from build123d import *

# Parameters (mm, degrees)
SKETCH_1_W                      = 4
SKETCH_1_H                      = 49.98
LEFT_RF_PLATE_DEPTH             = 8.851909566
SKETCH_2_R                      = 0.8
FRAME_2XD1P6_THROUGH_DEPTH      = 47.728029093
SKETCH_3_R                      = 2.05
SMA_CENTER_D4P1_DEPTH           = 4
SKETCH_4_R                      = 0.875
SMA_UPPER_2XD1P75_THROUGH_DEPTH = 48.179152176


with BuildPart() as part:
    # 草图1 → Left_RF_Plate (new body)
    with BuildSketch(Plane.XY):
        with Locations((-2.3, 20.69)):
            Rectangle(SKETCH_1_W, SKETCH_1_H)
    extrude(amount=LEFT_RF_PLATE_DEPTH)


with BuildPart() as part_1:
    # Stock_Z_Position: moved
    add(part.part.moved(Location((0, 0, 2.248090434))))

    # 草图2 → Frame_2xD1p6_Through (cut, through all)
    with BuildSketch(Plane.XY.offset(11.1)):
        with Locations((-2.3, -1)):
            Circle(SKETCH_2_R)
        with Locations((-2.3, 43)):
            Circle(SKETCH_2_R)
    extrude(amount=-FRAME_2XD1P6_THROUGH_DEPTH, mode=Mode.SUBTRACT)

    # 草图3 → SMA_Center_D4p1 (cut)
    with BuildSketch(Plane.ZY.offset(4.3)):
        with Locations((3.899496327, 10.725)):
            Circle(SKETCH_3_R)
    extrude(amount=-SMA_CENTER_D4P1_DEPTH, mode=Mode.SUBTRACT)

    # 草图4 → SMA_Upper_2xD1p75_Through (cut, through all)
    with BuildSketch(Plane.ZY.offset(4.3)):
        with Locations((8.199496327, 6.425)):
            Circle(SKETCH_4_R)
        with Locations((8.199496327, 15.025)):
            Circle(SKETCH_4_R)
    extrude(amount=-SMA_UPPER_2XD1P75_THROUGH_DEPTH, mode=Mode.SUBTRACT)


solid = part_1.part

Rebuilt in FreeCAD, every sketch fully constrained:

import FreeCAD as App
import Part
import Sketcher

V = App.Vector

doc = App.newDocument("Part")
body = doc.addObject("PartDesign::Body", "Body")

sketch1 = doc.addObject("Sketcher::SketchObject", "Sketch")
body.addObject(sketch1)
sketch1.AttachmentSupport = (doc.XY_Plane, [""])
sketch1.MapMode = "FlatFace"
sketch1.addGeometry([
    Part.LineSegment(V(-4.3, 45.68, 0), V(-4.3, -4.3, 0)),
    Part.LineSegment(V(-4.3, -4.3, 0), V(-0.3, -4.3, 0)),
    Part.LineSegment(V(-0.3, -4.3, 0), V(-0.3, 45.68, 0)),
    Part.LineSegment(V(-0.3, 45.68, 0), V(-4.3, 45.68, 0)),
], False)
sketch1.addConstraint([
    Sketcher.Constraint("Coincident", 0, 2, 1, 1),
    Sketcher.Constraint("Coincident", 1, 2, 2, 1),
    Sketcher.Constraint("Coincident", 2, 2, 3, 1),
    Sketcher.Constraint("Coincident", 3, 2, 0, 1),
    Sketcher.Constraint("Vertical", 0),
    Sketcher.Constraint("Horizontal", 1),
    Sketcher.Constraint("Vertical", 2),
    Sketcher.Constraint("Horizontal", 3),
    Sketcher.Constraint("DistanceX", 1, 1, 1, 2, 4.0),
    Sketcher.Constraint("DistanceY", 0, 2, 0, 1, 49.98),
    Sketcher.Constraint("DistanceX", 0, 2, -1, 1, 4.3),
    Sketcher.Constraint("DistanceY", 0, 2, -1, 1, 4.3),
])
pad1 = doc.addObject("PartDesign::Pad", "Pad")
body.addObject(pad1)
pad1.Profile = sketch1
pad1.Length = 8.85191
body2 = doc.addObject("PartDesign::Body", "Body001")
doc.recompute()

body.Placement = App.Placement(V(0, 0, 2.24809), App.Rotation(V(0, 0, 1), 0))
boolean = doc.addObject("PartDesign::Boolean", "Boolean")
body2.addObject(boolean)
boolean.Type = "Fuse"
boolean.addObjects([body])

sketch2 = doc.addObject("Sketcher::SketchObject", "Sketch001")
body2.addObject(sketch2)
sketch2.AttachmentSupport = (doc.getObject("XY_Plane001"), [""])
sketch2.MapMode = "FlatFace"
sketch2.AttachmentOffset = App.Placement(V(0, 0, 11.1), App.Rotation())
sketch2.addGeometry([
    Part.Circle(V(-2.3, -1, 0), V(0, 0, 1), 0.8),
    Part.Circle(V(-2.3, 43, 0), V(0, 0, 1), 0.8),
], False)
sketch2.addConstraint([
    Sketcher.Constraint("Equal", 0, 1),
    Sketcher.Constraint("Vertical", 0, 3, 1, 3),
    Sketcher.Constraint("Diameter", 0, 1.6),
    Sketcher.Constraint("DistanceY", 0, 3, -1, 1, 1.0),
    Sketcher.Constraint("DistanceY", -1, 1, 1, 3, 43.0),
    Sketcher.Constraint("DistanceX", 0, 3, -1, 1, 2.3),
])
pocket1 = doc.addObject("PartDesign::Pocket", "Pocket")
body2.addObject(pocket1)
pocket1.Profile = sketch2
pocket1.Type = "ThroughAll"

sketch3 = doc.addObject("Sketcher::SketchObject", "Sketch002")
body2.addObject(sketch3)
sketch3.AttachmentSupport = (doc.getObject("YZ_Plane001"), [""])
sketch3.MapMode = "FlatFace"
sketch3.AttachmentOffset = App.Placement(V(0, 0, -4.3), App.Rotation())
sketch3.addGeometry(Part.Circle(V(10.725, 3.899496, 0), V(0, 0, 1), 2.05), False)
sketch3.addConstraint([
    Sketcher.Constraint("Diameter", 0, 4.1),
    Sketcher.Constraint("DistanceX", -1, 1, 0, 3, 10.725),
    Sketcher.Constraint("DistanceY", -1, 1, 0, 3, 3.899496),
])
pocket2 = doc.addObject("PartDesign::Pocket", "Pocket001")
body2.addObject(pocket2)
pocket2.Profile = sketch3
pocket2.Length = 4
pocket2.Reversed = True

sketch4 = doc.addObject("Sketcher::SketchObject", "Sketch003")
body2.addObject(sketch4)
sketch4.AttachmentSupport = (doc.getObject("YZ_Plane001"), [""])
sketch4.MapMode = "FlatFace"
sketch4.AttachmentOffset = App.Placement(V(0, 0, -4.3), App.Rotation())
sketch4.addGeometry([
    Part.Circle(V(6.425, 8.199496, 0), V(0, 0, 1), 0.875),
    Part.Circle(V(15.025, 8.199496, 0), V(0, 0, 1), 0.875),
], False)
sketch4.addConstraint([
    Sketcher.Constraint("Equal", 0, 1),
    Sketcher.Constraint("Horizontal", 0, 3, 1, 3),
    Sketcher.Constraint("Diameter", 0, 1.75),
    Sketcher.Constraint("DistanceX", 0, 3, 1, 3, 8.6),
    Sketcher.Constraint("DistanceX", -1, 1, 0, 3, 6.425),
    Sketcher.Constraint("DistanceY", -1, 1, 0, 3, 8.199496),
])
pocket3 = doc.addObject("PartDesign::Pocket", "Pocket002")
body2.addObject(pocket3)
pocket3.Profile = sketch4
pocket3.Type = "ThroughAll"
pocket3.Reversed = True

doc.recompute()
